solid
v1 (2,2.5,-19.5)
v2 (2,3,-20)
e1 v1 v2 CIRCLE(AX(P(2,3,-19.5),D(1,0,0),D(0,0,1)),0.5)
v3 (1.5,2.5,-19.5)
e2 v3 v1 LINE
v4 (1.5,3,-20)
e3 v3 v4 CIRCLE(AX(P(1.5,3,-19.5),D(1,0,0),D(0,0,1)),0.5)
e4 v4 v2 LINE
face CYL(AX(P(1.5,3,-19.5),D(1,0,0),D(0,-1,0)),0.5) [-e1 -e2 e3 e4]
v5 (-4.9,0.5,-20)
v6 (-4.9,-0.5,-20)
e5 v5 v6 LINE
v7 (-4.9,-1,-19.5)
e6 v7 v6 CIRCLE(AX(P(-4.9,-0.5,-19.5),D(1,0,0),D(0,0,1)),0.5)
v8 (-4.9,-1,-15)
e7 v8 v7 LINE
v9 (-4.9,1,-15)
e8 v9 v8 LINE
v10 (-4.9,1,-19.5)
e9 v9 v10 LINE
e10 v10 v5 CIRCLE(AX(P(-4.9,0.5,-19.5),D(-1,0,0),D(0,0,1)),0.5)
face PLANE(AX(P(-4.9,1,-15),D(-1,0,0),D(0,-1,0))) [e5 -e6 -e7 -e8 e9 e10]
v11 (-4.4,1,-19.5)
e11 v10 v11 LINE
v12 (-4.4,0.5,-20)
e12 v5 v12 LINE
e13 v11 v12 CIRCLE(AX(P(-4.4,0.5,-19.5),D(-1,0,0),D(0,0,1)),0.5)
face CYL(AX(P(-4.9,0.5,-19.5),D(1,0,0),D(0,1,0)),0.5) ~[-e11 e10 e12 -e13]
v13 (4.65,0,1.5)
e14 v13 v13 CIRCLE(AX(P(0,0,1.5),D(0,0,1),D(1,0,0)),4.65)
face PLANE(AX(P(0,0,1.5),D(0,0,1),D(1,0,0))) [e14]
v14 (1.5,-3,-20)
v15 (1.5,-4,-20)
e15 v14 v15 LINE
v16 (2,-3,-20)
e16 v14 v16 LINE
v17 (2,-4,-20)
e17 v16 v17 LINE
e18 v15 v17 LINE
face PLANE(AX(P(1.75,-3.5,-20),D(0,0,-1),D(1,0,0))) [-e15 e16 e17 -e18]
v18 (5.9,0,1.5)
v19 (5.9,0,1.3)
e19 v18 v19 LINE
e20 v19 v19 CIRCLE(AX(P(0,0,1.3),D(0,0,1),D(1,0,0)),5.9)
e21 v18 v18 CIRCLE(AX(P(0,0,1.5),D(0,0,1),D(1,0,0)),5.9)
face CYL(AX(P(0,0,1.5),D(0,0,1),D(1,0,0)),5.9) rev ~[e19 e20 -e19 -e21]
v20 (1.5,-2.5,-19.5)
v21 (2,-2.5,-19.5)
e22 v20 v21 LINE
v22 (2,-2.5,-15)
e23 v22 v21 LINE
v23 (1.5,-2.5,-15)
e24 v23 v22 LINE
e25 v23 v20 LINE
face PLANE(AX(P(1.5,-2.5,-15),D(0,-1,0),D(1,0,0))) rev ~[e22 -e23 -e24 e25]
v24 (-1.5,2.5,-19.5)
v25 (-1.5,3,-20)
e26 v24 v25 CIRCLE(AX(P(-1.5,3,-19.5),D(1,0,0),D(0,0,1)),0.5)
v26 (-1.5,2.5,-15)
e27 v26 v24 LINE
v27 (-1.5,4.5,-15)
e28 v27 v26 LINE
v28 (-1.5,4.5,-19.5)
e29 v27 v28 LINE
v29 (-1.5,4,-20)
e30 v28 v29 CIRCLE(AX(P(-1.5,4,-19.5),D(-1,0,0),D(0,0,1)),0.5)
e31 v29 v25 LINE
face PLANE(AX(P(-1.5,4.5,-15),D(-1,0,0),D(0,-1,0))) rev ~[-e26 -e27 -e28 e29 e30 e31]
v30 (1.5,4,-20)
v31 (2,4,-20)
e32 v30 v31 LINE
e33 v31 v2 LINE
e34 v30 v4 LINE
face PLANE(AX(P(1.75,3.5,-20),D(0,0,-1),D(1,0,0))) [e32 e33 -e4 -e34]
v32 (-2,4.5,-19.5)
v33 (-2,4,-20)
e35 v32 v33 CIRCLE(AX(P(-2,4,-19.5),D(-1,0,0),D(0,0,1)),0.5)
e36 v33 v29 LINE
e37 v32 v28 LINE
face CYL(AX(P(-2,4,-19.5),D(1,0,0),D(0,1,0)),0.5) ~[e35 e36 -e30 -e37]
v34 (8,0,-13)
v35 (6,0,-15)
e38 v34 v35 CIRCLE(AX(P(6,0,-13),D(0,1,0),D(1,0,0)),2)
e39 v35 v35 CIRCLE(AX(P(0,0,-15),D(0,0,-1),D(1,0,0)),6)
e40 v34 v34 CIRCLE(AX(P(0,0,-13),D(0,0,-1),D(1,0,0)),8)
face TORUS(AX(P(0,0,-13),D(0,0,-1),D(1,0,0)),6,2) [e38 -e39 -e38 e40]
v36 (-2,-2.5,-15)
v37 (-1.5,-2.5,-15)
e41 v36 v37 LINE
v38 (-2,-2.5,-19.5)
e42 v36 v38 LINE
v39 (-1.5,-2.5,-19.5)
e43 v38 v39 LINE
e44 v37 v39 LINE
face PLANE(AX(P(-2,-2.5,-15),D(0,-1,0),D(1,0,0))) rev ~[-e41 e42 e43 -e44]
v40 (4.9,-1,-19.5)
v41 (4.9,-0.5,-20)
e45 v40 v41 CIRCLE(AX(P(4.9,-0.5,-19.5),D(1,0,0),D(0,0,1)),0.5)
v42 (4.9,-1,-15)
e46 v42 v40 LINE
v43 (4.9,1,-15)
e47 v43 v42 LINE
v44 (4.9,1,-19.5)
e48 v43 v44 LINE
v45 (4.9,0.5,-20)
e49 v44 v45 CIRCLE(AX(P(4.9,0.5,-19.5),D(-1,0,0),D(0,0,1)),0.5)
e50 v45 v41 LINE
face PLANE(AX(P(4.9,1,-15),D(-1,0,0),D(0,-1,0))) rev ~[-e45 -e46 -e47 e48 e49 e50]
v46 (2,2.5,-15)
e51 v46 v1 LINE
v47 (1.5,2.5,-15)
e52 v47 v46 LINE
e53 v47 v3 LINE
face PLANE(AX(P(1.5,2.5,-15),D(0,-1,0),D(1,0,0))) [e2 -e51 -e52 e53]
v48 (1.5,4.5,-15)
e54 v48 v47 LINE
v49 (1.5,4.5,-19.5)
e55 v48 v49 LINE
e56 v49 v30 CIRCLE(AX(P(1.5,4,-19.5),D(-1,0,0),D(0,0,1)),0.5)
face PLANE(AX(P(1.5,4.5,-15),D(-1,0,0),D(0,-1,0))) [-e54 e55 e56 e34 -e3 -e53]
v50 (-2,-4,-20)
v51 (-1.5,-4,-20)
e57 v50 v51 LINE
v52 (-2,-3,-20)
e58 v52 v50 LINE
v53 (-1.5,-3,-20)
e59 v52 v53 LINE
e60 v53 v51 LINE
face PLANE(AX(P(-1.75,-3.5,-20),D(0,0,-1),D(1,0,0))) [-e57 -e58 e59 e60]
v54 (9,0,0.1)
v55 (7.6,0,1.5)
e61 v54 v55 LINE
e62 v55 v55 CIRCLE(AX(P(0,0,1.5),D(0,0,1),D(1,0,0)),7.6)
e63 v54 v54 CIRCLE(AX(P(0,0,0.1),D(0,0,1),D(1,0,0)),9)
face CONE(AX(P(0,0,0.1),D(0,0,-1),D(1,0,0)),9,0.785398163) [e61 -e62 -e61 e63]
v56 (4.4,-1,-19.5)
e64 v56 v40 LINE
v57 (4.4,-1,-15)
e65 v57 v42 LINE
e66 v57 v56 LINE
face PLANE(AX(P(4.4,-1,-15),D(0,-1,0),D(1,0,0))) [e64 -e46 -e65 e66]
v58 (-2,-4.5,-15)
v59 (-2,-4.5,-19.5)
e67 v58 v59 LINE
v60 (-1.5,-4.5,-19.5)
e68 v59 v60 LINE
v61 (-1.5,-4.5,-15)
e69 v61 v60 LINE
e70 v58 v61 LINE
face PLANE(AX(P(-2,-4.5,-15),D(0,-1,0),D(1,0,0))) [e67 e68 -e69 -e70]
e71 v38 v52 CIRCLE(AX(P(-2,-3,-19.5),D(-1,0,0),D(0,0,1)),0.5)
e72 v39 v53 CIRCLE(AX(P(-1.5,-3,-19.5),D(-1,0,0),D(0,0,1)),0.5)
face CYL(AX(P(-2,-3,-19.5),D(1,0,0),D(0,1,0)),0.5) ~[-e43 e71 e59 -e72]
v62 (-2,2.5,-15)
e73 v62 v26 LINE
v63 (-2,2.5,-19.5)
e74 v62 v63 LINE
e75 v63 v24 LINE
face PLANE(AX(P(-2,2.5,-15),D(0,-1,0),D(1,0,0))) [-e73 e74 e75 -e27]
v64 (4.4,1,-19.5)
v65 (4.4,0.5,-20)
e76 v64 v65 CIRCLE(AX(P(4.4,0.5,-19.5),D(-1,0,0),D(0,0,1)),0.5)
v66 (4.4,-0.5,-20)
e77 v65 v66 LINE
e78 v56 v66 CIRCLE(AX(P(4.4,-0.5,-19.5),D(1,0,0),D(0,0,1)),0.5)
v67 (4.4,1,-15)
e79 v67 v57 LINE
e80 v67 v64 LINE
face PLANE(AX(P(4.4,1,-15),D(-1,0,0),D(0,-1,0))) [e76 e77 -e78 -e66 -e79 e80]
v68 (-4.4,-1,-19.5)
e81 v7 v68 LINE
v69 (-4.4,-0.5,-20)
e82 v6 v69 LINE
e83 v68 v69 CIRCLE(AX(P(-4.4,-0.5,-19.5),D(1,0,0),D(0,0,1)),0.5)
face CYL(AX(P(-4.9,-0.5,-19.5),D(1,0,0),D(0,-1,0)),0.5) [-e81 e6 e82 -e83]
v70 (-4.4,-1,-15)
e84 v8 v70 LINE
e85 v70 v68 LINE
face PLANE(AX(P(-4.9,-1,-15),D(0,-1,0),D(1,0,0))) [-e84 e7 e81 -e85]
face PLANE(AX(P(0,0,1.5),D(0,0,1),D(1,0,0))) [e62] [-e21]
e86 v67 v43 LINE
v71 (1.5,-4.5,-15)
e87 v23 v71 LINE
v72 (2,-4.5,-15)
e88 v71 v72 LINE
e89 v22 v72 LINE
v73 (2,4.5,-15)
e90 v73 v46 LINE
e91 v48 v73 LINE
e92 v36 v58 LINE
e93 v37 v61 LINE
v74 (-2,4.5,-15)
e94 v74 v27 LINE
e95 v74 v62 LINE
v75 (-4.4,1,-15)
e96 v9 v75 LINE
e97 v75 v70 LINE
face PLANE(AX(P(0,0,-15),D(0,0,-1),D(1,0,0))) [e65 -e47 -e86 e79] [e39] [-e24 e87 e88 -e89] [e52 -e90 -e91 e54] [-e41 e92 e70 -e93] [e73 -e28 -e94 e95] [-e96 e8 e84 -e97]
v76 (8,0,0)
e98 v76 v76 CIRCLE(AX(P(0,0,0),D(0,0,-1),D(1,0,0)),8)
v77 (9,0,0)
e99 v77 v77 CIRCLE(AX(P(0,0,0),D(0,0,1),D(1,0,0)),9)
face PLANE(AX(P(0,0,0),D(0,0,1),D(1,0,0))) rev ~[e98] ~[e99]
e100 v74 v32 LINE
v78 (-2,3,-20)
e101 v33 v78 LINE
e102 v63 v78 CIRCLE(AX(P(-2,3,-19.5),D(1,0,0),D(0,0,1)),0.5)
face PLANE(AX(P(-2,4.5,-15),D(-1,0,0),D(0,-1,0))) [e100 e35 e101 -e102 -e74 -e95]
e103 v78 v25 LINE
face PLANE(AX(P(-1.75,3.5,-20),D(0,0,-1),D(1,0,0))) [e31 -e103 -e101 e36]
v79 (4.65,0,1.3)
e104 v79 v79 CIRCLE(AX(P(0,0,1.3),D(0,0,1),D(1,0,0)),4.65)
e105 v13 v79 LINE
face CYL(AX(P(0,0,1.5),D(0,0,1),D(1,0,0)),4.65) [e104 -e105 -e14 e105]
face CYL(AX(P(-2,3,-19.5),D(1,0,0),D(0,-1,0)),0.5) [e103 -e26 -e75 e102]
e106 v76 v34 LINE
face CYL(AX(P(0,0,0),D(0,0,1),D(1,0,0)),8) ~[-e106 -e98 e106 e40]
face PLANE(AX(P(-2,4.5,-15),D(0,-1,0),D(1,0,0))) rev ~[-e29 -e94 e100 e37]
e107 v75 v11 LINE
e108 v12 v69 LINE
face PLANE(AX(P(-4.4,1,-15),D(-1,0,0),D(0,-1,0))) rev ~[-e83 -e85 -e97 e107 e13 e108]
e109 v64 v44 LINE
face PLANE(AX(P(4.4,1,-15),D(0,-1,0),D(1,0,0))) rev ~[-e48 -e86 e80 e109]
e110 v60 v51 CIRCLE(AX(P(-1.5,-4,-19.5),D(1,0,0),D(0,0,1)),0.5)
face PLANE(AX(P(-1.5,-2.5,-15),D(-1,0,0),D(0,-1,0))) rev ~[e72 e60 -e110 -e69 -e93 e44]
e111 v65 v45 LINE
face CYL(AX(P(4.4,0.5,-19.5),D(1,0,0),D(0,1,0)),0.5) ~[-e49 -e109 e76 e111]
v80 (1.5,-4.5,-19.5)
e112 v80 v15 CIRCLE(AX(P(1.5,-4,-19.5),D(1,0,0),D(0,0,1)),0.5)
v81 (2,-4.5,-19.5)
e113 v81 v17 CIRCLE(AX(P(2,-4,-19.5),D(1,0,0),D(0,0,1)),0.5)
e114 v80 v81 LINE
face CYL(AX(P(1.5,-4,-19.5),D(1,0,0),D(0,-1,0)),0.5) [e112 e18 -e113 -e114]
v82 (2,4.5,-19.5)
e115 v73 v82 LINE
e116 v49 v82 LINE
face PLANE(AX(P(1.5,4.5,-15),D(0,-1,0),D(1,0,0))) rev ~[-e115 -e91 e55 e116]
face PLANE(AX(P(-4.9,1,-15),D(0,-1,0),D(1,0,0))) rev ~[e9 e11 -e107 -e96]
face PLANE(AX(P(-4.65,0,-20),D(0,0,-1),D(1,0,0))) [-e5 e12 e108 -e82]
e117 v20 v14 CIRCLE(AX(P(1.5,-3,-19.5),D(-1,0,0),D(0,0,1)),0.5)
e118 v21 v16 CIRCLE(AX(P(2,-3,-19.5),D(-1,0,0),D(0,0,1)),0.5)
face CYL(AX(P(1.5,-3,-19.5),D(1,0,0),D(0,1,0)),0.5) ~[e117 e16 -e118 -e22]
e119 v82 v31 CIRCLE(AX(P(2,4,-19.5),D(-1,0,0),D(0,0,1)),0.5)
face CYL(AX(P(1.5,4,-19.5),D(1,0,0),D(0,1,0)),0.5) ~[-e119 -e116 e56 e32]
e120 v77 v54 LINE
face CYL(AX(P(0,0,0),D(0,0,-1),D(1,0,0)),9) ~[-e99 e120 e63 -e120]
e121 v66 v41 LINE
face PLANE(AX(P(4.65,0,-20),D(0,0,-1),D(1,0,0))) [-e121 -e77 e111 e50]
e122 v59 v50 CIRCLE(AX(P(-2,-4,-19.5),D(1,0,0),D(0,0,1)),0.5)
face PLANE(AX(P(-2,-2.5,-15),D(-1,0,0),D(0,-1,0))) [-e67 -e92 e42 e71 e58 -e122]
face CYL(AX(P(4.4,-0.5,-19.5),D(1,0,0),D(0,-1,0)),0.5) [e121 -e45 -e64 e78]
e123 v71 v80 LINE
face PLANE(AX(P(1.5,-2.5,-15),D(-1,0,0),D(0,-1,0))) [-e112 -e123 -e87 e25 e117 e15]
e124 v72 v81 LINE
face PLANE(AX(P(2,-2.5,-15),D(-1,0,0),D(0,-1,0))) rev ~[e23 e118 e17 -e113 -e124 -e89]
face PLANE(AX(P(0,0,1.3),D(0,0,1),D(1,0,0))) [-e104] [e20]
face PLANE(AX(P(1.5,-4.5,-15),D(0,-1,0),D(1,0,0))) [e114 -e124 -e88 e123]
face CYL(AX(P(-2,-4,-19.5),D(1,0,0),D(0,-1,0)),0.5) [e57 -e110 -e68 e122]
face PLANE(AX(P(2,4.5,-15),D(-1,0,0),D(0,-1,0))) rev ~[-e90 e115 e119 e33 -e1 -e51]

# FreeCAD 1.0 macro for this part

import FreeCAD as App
import Part
import Sketcher
Q = App.Units.Quantity


def edges_at(feature, points):
    """Names of the edges that pass closest to the given points."""
    edges = feature.Shape.Edges
    near = lambda p: min(range(len(edges)), key=lambda i: edges[i].distToShape(Part.Vertex(*p))[0])
    return sorted({f"Edge{near(p) + 1}" for p in points})


def add_polygon(sketch, points):
    """Adds a closed chain of lines whose ends are joined by coincident constraints."""
    first, n = sketch.GeometryCount, len(points)
    for a, b in zip(points, points[1:] + points[:1]):
        sketch.addGeometry(Part.LineSegment(App.Vector(*a, 0), App.Vector(*b, 0)), False)
    for i in range(n):
        sketch.addConstraint(Sketcher.Constraint("Coincident", first + i, 2, first + (i + 1) % n, 1))

doc = App.newDocument("Part")
params = doc.addObject("Spreadsheet::Sheet", "Params")
for row, (alias, value) in enumerate([
    ("sketch1_diameter", "18 mm"),
    ("pad1_length", "1.5 mm"),
    ("chamfer_size", "1.4 mm"),
    ("sketch2_diameter", "11.8 mm"),
    ("sketch2_diameter2", "9.3 mm"),
    ("pocket1_length", "0.2 mm"),
    ("sketch3_diameter", "16 mm"),
    ("pad2_length", "15 mm"),
    ("fillet_radius", "2 mm"),
    ("sketch4_height", "2 mm"),
    ("sketch4_width", "0.5 mm"),
    ("pad3_length", "5 mm"),
    ("fillet2_radius", "0.5 mm"),
], start=1):
    params.set(f"A{row}", alias)
    params.set(f"B{row}", "=" + value)
    params.setAlias(f"B{row}", alias)

body = doc.addObject("PartDesign::Body", "Body")

# Sketch on XY plane
sketch1 = body.newObject("Sketcher::SketchObject", "Sketch")
sketch1.AttachmentSupport = (doc.getObject("XY_Plane"), [""])
sketch1.MapMode = "FlatFace"
sketch1.addGeometry(Part.Circle(App.Vector(0, 0, 0), App.Vector(0, 0, 1), 9), False)
sketch1.addConstraint([
    Sketcher.Constraint("Coincident", 0, 3, -1, 1),
    Sketcher.Constraint("Diameter", 0, Q("18 mm")),
])
sketch1.setExpression("Constraints[1]", "Params.sketch1_diameter")
pad1 = body.newObject("PartDesign::Pad", "Pad")
pad1.Profile = sketch1
pad1.setExpression("Length", "Params.pad1_length")
doc.recompute()

chamfer = body.newObject("PartDesign::Chamfer", "Chamfer")
chamfer.Base = (pad1, edges_at(pad1, [(-9, 0, 1.5)]))
chamfer.setExpression("Size", "Params.chamfer_size")

# Sketch on XY plane
sketch2 = body.newObject("Sketcher::SketchObject", "Sketch001")
sketch2.AttachmentSupport = (doc.getObject("XY_Plane"), [""])
sketch2.MapMode = "FlatFace"
sketch2.AttachmentOffset = App.Placement(App.Vector(0, 0, 1.5), App.Rotation())
sketch2.addGeometry([
    Part.Circle(App.Vector(0, 0, 0), App.Vector(0, 0, 1), 5.9),
    Part.Circle(App.Vector(0, 0, 0), App.Vector(0, 0, 1), 4.7),
], False)
sketch2.addConstraint([
    Sketcher.Constraint("Coincident", 0, 3, -1, 1),
    Sketcher.Constraint("Coincident", 1, 3, -1, 1),
    Sketcher.Constraint("Diameter", 0, Q("11.8 mm")),
    Sketcher.Constraint("Diameter", 1, Q("9.3 mm")),
])
sketch2.setExpression("Constraints[2]", "Params.sketch2_diameter")
sketch2.setExpression("Constraints[3]", "Params.sketch2_diameter2")
pocket1 = body.newObject("PartDesign::Pocket", "Pocket")
pocket1.Profile = sketch2
pocket1.setExpression("Length", "Params.pocket1_length")

# Sketch on XY plane
sketch3 = body.newObject("Sketcher::SketchObject", "Sketch002")
sketch3.AttachmentSupport = (doc.getObject("XY_Plane"), [""])
sketch3.MapMode = "FlatFace"
sketch3.addGeometry(Part.Circle(App.Vector(0, 0, 0), App.Vector(0, 0, 1), 8), False)
sketch3.addConstraint([
    Sketcher.Constraint("Coincident", 0, 3, -1, 1),
    Sketcher.Constraint("Diameter", 0, Q("16 mm")),
])
sketch3.setExpression("Constraints[1]", "Params.sketch3_diameter")
pad2 = body.newObject("PartDesign::Pad", "Pad001")
pad2.Profile = sketch3
pad2.setExpression("Length", "Params.pad2_length")
pad2.Reversed = True
doc.recompute()

fillet = body.newObject("PartDesign::Fillet", "Fillet")
fillet.Base = (pad2, edges_at(pad2, [(-8, 0, -15)]))
fillet.setExpression("Radius", "Params.fillet_radius")

# Sketch on XY plane
sketch4 = body.newObject("Sketcher::SketchObject", "Sketch003")
sketch4.AttachmentSupport = (doc.getObject("XY_Plane"), [""])
sketch4.MapMode = "FlatFace"
sketch4.AttachmentOffset = App.Placement(App.Vector(0, 0, -15), App.Rotation())
add_polygon(sketch4, [(-2, -4.5), (-2, -2.5), (-1.5, -2.5), (-1.5, -4.5)])  # lines 0-3
add_polygon(sketch4, [(1.5, -4.5), (1.5, -2.5), (2, -2.5), (2, -4.5)])  # lines 4-7
add_polygon(sketch4, [(1.5, 2.5), (1.5, 4.5), (2, 4.5), (2, 2.5)])  # lines 8-11
add_polygon(sketch4, [(-2, 2.5), (-2, 4.5), (-1.5, 4.5), (-1.5, 2.5)])  # lines 12-15
add_polygon(sketch4, [(-4.9, -1), (-4.9, 1), (-4.4, 1), (-4.4, -1)])  # lines 16-19
add_polygon(sketch4, [(4.4, -1), (4.4, 1), (4.9, 1), (4.9, -1)])  # lines 20-23
sketch4.addConstraint([
    Sketcher.Constraint("Vertical", 0),
    Sketcher.Constraint("Horizontal", 1),
    Sketcher.Constraint("Vertical", 2),
    Sketcher.Constraint("Horizontal", 3),
    Sketcher.Constraint("Vertical", 4),
    Sketcher.Constraint("Horizontal", 5),
    Sketcher.Constraint("Vertical", 6),
    Sketcher.Constraint("Horizontal", 7),
    Sketcher.Constraint("Vertical", 8),
    Sketcher.Constraint("Horizontal", 9),
    Sketcher.Constraint("Vertical", 10),
    Sketcher.Constraint("Horizontal", 11),
    Sketcher.Constraint("Vertical", 12),
    Sketcher.Constraint("Horizontal", 13),
    Sketcher.Constraint("Vertical", 14),
    Sketcher.Constraint("Horizontal", 15),
    Sketcher.Constraint("Vertical", 16),
    Sketcher.Constraint("Horizontal", 17),
    Sketcher.Constraint("Vertical", 18),
    Sketcher.Constraint("Horizontal", 19),
    Sketcher.Constraint("Vertical", 20),
    Sketcher.Constraint("Horizontal", 21),
    Sketcher.Constraint("Vertical", 22),
    Sketcher.Constraint("Horizontal", 23),
    Sketcher.Constraint("Symmetric", 2, 2, 8, 2, -1, 1),
    Sketcher.Constraint("Symmetric", 0, 2, 10, 2, -1, 1),
    Sketcher.Constraint("Symmetric", 6, 2, 12, 2, -1, 1),
    Sketcher.Constraint("Symmetric", 4, 2, 14, 2, -1, 1),
    Sketcher.Constraint("Symmetric", 18, 2, 20, 2, -1, 1),
    Sketcher.Constraint("Symmetric", 16, 2, 22, 2, -1, 1),
    Sketcher.Constraint("Symmetric", 1, 2, 4, 2, -2),
    Sketcher.Constraint("Symmetric", 3, 2, 6, 2, -2),
    Sketcher.Constraint("Horizontal", 17, 2, 20, 2),
    Sketcher.Constraint("Equal", 15, 17),
    Sketcher.Constraint("Equal", 14, 16),
    Sketcher.Constraint("DistanceY", 0, 1, 0, 2, Q("2 mm")),
    Sketcher.Constraint("DistanceX", 1, 1, 1, 2, Q("0.5 mm")),
    Sketcher.Constraint("DistanceX", 0, 2, -1, 1, Q("2 mm")),
    Sketcher.Constraint("DistanceY", 4, 2, 8, 2, Q("7 mm")),
    Sketcher.Constraint("DistanceX", 16, 2, -1, 1, Q("4.9 mm")),
])
sketch4.setExpression("Constraints[59]", "Params.sketch4_height")
sketch4.setExpression("Constraints[60]", "Params.sketch4_width")
pad3 = body.newObject("PartDesign::Pad", "Pad002")
pad3.Profile = sketch4
pad3.setExpression("Length", "Params.pad3_length")
pad3.Reversed = True
doc.recompute()

fillet2 = body.newObject("PartDesign::Fillet", "Fillet001")
fillet2.Base = (pad3, edges_at(pad3, [
    (-1.75, -4.5, -20),
    (1.75, -4.5, -20),
    (4.65, -1, -20),
    (-4.65, -1, -20),
    (1.75, 2.5, -20),
    (-1.75, 2.5, -20),
    (-4.65, 1, -20),
    (-1.75, -2.5, -20),
    (1.75, -2.5, -20),
    (4.65, 1, -20),
    (1.75, 4.5, -20),
    (-1.75, 4.5, -20),
]))
fillet2.setExpression("Radius", "Params.fillet2_radius")

doc.recompute()
